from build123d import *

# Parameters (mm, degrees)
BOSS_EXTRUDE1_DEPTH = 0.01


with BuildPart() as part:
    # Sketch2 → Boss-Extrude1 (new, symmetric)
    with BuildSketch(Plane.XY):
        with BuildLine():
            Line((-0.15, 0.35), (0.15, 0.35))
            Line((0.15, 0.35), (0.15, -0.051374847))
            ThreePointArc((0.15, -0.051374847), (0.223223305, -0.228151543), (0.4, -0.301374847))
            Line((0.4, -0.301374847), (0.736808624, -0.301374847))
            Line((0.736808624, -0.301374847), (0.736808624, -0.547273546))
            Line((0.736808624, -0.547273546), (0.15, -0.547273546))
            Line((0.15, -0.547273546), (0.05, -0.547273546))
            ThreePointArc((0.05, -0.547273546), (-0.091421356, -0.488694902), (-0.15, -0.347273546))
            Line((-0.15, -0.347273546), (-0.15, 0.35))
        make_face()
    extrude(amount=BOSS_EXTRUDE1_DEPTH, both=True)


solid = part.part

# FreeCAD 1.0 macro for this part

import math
import FreeCAD as App
import Part
import Sketcher
from FreeCAD import Vector

doc = App.newDocument("Part")
body = doc.addObject("PartDesign::Body", "Body")

# Sketch on XY plane
sketch1 = body.newObject("Sketcher::SketchObject", "Sketch")
sketch1.AttachmentSupport = (doc.getObject("XY_Plane"), [""])
sketch1.MapMode = "FlatFace"
sketch1.addGeometry([
    Part.LineSegment(Vector(0.15, 0.35, 0), Vector(-0.15, 0.35, 0)),  # 0
    Part.LineSegment(Vector(-0.15, 0.35, 0), Vector(-0.15, -0.347274, 0)),  # 1
    Part.ArcOfCircle(Part.Circle(Vector(0.05, -0.347274, 0), Vector(0, 0, 1), 0.2), math.radians(-180), math.radians(-90)),  # 2
    Part.LineSegment(Vector(0.05, -0.547274, 0), Vector(0.736809, -0.547274, 0)),  # 3
    Part.LineSegment(Vector(0.736809, -0.547274, 0), Vector(0.736809, -0.301375, 0)),  # 4
    Part.LineSegment(Vector(0.736809, -0.301375, 0), Vector(0.4, -0.301375, 0)),  # 5
    Part.ArcOfCircle(Part.Circle(Vector(0.4, -0.051375, 0), Vector(0, 0, 1), 0.25), math.radians(180), math.radians(270)),  # 6
    Part.LineSegment(Vector(0.15, -0.051375, 0), Vector(0.15, 0.35, 0)),  # 7
], False)
sketch1.addConstraint([
    Sketcher.Constraint("Coincident", 0, 2, 1, 1),
    Sketcher.Constraint("Tangent", 1, 2, 2, 1),
    Sketcher.Constraint("Tangent", 2, 2, 3, 1),
    Sketcher.Constraint("Coincident", 3, 2, 4, 1),
    Sketcher.Constraint("Coincident", 4, 2, 5, 1),
    Sketcher.Constraint("Tangent", 5, 2, 6, 2),
    Sketcher.Constraint("Tangent", 6, 1, 7, 1),
    Sketcher.Constraint("Coincident", 7, 2, 0, 1),
    Sketcher.Constraint("Horizontal", 0),
    Sketcher.Constraint("Vertical", 1),
    Sketcher.Constraint("Horizontal", 3),
    Sketcher.Constraint("Vertical", 4),
    Sketcher.Constraint("Horizontal", 5),
    Sketcher.Constraint("Vertical", 7),
    Sketcher.Constraint("Radius", 2, 0.2),
    Sketcher.Constraint("Radius", 6, 0.25),
    Sketcher.Constraint("DistanceX", 0, 2, 0, 1, 0.3),
    Sketcher.Constraint("DistanceX", -1, 1, 6, 3, 0.4),
    Sketcher.Constraint("DistanceY", -1, 1, 0, 2, 0.35),
    Sketcher.Constraint("DistanceY", 4, 1, 4, 2, 0.245899),
    Sketcher.Constraint("DistanceX", 3, 1, 3, 2, 0.686809),
    Sketcher.Constraint("DistanceY", 1, 2, 1, 1, 0.697274),
])
pad1 = body.newObject("PartDesign::Pad", "Pad")
pad1.Profile = sketch1
pad1.Length = 0.02
pad1.Midplane = True

doc.recompute()
